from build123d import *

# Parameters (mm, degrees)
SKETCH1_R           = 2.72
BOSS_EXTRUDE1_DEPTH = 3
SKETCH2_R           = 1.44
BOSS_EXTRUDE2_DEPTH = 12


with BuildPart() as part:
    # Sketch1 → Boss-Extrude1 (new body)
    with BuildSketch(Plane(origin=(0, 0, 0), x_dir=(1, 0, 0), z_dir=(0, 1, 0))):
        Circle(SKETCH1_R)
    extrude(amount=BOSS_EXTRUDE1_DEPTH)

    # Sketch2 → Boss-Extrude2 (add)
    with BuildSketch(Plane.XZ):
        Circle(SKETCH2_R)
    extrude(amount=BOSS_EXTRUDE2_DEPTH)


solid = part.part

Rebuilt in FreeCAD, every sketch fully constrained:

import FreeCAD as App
import Part
import Sketcher

doc = App.newDocument("Part")
params = doc.addObject("Spreadsheet::Sheet", "Params")
for row, (alias, value) in enumerate([
    ("sketch1_diameter", "5.44 mm"),
    ("pad1_length", "3 mm"),
    ("sketch2_diameter", "2.88 mm"),
    ("pad2_length", "12 mm"),
], start=1):
    params.set(f"A{row}", alias)
    params.set(f"B{row}", "=" + value)
    params.setAlias(f"B{row}", alias)

body = doc.addObject("PartDesign::Body", "Body")

# Sketch on XZ plane
sketch1 = body.newObject("Sketcher::SketchObject", "Sketch")
sketch1.AttachmentSupport = (doc.getObject("XZ_Plane"), [""])
sketch1.MapMode = "FlatFace"
sketch1.addGeometry(Part.Circle(App.Vector(0, 0, 0), App.Vector(0, 0, 1), 2.7), False)
sketch1.addConstraint([
    Sketcher.Constraint("Coincident", 0, 3, -1, 1),
    Sketcher.Constraint("Diameter", 0, 5.44),
])
sketch1.setExpression("Constraints[1]", "Params.sketch1_diameter")
pad1 = body.newObject("PartDesign::Pad", "Pad")
pad1.Profile = sketch1
pad1.setExpression("Length", "Params.pad1_length")
pad1.Reversed = True

# Sketch on XZ plane
sketch2 = body.newObject("Sketcher::SketchObject", "Sketch001")
sketch2.AttachmentSupport = (doc.getObject("XZ_Plane"), [""])
sketch2.MapMode = "FlatFace"
sketch2.addGeometry(Part.Circle(App.Vector(0, 0, 0), App.Vector(0, 0, 1), 1.4), False)
sketch2.addConstraint([
    Sketcher.Constraint("Coincident", 0, 3, -1, 1),
    Sketcher.Constraint("Diameter", 0, 2.88),
])
sketch2.setExpression("Constraints[1]", "Params.sketch2_diameter")
pad2 = body.newObject("PartDesign::Pad", "Pad001")
pad2.Profile = sketch2
pad2.setExpression("Length", "Params.pad2_length")

doc.recompute()
